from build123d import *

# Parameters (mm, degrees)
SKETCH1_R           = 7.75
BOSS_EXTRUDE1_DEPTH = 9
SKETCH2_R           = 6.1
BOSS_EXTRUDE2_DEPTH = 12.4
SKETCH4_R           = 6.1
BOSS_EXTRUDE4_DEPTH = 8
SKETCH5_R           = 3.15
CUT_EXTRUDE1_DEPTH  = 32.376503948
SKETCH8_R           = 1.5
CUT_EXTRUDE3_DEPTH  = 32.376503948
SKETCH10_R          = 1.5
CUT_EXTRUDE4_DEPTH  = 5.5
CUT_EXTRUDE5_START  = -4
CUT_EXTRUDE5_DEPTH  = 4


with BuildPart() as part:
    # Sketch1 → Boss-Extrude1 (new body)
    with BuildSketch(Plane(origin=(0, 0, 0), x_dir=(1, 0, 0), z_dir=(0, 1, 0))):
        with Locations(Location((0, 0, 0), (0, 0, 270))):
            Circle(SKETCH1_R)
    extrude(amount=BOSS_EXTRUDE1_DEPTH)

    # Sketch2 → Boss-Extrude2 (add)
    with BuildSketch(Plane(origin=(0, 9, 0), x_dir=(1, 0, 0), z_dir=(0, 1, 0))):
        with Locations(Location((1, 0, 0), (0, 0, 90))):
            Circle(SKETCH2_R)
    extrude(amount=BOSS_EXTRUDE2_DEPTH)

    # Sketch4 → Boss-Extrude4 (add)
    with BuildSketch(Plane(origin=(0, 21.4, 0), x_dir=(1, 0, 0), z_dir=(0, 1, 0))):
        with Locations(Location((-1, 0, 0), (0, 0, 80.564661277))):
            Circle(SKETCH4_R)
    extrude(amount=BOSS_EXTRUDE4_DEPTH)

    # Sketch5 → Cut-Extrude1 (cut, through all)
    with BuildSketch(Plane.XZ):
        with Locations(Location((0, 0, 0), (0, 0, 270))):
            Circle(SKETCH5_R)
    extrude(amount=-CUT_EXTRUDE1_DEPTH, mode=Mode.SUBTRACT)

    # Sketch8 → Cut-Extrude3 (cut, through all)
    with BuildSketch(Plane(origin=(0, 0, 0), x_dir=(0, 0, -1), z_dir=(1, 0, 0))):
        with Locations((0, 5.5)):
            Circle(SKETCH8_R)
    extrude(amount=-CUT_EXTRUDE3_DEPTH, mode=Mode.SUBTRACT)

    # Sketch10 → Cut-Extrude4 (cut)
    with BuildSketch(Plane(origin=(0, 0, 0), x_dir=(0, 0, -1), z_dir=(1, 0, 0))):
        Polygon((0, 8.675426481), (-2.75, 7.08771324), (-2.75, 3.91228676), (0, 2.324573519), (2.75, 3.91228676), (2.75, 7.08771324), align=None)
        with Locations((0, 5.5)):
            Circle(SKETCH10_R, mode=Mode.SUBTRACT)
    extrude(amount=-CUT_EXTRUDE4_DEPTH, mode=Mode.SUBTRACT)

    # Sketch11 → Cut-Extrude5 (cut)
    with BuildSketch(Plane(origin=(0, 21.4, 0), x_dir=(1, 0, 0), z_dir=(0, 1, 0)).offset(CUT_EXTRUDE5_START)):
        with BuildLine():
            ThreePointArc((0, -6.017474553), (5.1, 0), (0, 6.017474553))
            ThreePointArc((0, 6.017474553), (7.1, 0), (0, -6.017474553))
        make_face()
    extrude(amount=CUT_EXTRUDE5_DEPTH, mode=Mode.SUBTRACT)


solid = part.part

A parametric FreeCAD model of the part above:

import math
import FreeCAD as App
import Part
import Sketcher

V = App.Vector
Q = App.Units.Quantity


def add_polygon(sketch, points):
    """Adds a closed chain of lines whose ends are joined by coincident constraints."""
    first, n = sketch.GeometryCount, len(points)
    for a, b in zip(points, points[1:] + points[:1]):
        sketch.addGeometry(Part.LineSegment(App.Vector(*a, 0), App.Vector(*b, 0)), False)
    for i in range(n):
        sketch.addConstraint(Sketcher.Constraint("Coincident", first + i, 2, first + (i + 1) % n, 1))

doc = App.newDocument("Part")
body = doc.addObject("PartDesign::Body", "Body")

# Sketch on XZ plane
sketch1 = body.newObject("Sketcher::SketchObject", "Sketch")
sketch1.AttachmentSupport = (doc.getObject("XZ_Plane"), [""])
sketch1.MapMode = "FlatFace"
sketch1.addGeometry(Part.Circle(V(0, 0, 0), V(0, 0, 1), 7.75), False)
sketch1.addConstraint(Sketcher.Constraint("Coincident", 0, 3, -1, 1))
sketch1.addConstraint(Sketcher.Constraint("Diameter", 0, 15.5))
pad1 = body.newObject("PartDesign::Pad", "Pad")
pad1.Profile = sketch1
pad1.Length = 9
pad1.Reversed = True

# Sketch on XZ plane
sketch2 = body.newObject("Sketcher::SketchObject", "Sketch001")
sketch2.AttachmentSupport = (doc.getObject("XZ_Plane"), [""])
sketch2.MapMode = "FlatFace"
sketch2.AttachmentOffset = App.Placement(V(0, 0, -9), App.Rotation())
sketch2.addGeometry(Part.Circle(V(1, 0, 0), V(0, 0, 1), 6.1), False)
sketch2.addConstraint(Sketcher.Constraint("PointOnObject", 0, 3, -1))
sketch2.addConstraint(Sketcher.Constraint("Diameter", 0, 12.2))
sketch2.addConstraint(Sketcher.Constraint("DistanceX", -1, 1, 0, 3, 1.0))
pad2 = body.newObject("PartDesign::Pad", "Pad001")
pad2.Profile = sketch2
pad2.Length = 12.4
pad2.Reversed = True

# Sketch on XZ plane
sketch3 = body.newObject("Sketcher::SketchObject", "Sketch002")
sketch3.AttachmentSupport = (doc.getObject("XZ_Plane"), [""])
sketch3.MapMode = "FlatFace"
sketch3.AttachmentOffset = App.Placement(V(0, 0, -21.4), App.Rotation())
sketch3.addGeometry(Part.Circle(V(-1, 0, 0), V(0, 0, 1), 6.1), False)
sketch3.addConstraint(Sketcher.Constraint("PointOnObject", 0, 3, -1))
sketch3.addConstraint(Sketcher.Constraint("Diameter", 0, 12.2))
sketch3.addConstraint(Sketcher.Constraint("DistanceX", 0, 3, -1, 1, 1.0))
pad3 = body.newObject("PartDesign::Pad", "Pad002")
pad3.Profile = sketch3
pad3.Length = 8
pad3.Reversed = True

# Sketch on XZ plane
sketch4 = body.newObject("Sketcher::SketchObject", "Sketch003")
sketch4.AttachmentSupport = (doc.getObject("XZ_Plane"), [""])
sketch4.MapMode = "FlatFace"
sketch4.addGeometry(Part.Circle(V(0, 0, 0), V(0, 0, 1), 3.15), False)
sketch4.addConstraint(Sketcher.Constraint("Coincident", 0, 3, -1, 1))
sketch4.addConstraint(Sketcher.Constraint("Diameter", 0, 6.3))
pocket1 = body.newObject("PartDesign::Pocket", "Pocket")
pocket1.Profile = sketch4
pocket1.Type = "ThroughAll"

# Sketch on YZ plane
sketch5 = body.newObject("Sketcher::SketchObject", "Sketch004")
sketch5.AttachmentSupport = (doc.getObject("YZ_Plane"), [""])
sketch5.MapMode = "FlatFace"
sketch5.addGeometry(Part.Circle(V(5.5, 0, 0), V(0, 0, 1), 1.5), False)
sketch5.addConstraint(Sketcher.Constraint("PointOnObject", 0, 3, -1))
sketch5.addConstraint(Sketcher.Constraint("Diameter", 0, 3.0))
sketch5.addConstraint(Sketcher.Constraint("DistanceX", -1, 1, 0, 3, 5.5))
pocket2 = body.newObject("PartDesign::Pocket", "Pocket001")
pocket2.Profile = sketch5
pocket2.Type = "ThroughAll"

# Sketch on YZ plane
sketch6 = body.newObject("Sketcher::SketchObject", "Sketch005")
sketch6.AttachmentSupport = (doc.getObject("YZ_Plane"), [""])
sketch6.MapMode = "FlatFace"
add_polygon(sketch6, [(8.675426, 0), (7.087713, 2.75), (3.912287, 2.75), (2.324574, 0), (3.912287, -2.75), (7.087713, -2.75)])  # lines 0-5
sketch6.addGeometry(Part.Circle(V(5.5, 0, 0), V(0, 0, 1), 1.5), False)  # 6
sketch6.addConstraint(Sketcher.Constraint("Horizontal", 1))
sketch6.addConstraint(Sketcher.Constraint("Horizontal", 4))
sketch6.addConstraint(Sketcher.Constraint("Symmetric", 1, 2, 3, 2, -1))
sketch6.addConstraint(Sketcher.Constraint("PointOnObject", 6, 3, -1))
sketch6.addConstraint(Sketcher.Constraint("PointOnObject", 2, 2, -1))
sketch6.addConstraint(Sketcher.Constraint("PointOnObject", 5, 2, -1))
sketch6.addConstraint(Sketcher.Constraint("Parallel", 0, 3))
sketch6.addConstraint(Sketcher.Constraint("Parallel", 2, 5))
sketch6.addConstraint(Sketcher.Constraint("Diameter", 6, 3.0))
sketch6.addConstraint(Sketcher.Constraint("Angle", 0, Q("120 deg")))
sketch6.addConstraint(Sketcher.Constraint("DistanceX", -1, 1, 6, 3, 5.5))
sketch6.addConstraint(Sketcher.Constraint("DistanceY", 3, 2, 1, 2, 5.5))
sketch6.addConstraint(Sketcher.Constraint("DistanceX", 1, 2, 1, 1, 3.175426))
sketch6.addConstraint(Sketcher.Constraint("DistanceX", -1, 1, 0, 2, 7.087713))
pocket3 = body.newObject("PartDesign::Pocket", "Pocket002")
pocket3.Profile = sketch6
pocket3.Length = 5.5

# Sketch on XZ plane
sketch7 = body.newObject("Sketcher::SketchObject", "Sketch006")
sketch7.AttachmentSupport = (doc.getObject("XZ_Plane"), [""])
sketch7.MapMode = "FlatFace"
sketch7.AttachmentOffset = App.Placement(V(0, 0, -17.4), App.Rotation())
sketch7.addGeometry(Part.ArcOfCircle(Part.Circle(V(-1, 0, 0), V(0, 0, 1), 6.1), math.radians(-80.564661), math.radians(80.564661)), False)
sketch7.addGeometry(Part.ArcOfCircle(Part.Circle(V(1, 0, 0), V(0, 0, 1), 6.1), math.radians(-99.435339), math.radians(99.435339)), False)
sketch7.addConstraint(Sketcher.Constraint("Coincident", 0, 1, 1, 1))
sketch7.addConstraint(Sketcher.Constraint("Coincident", 1, 2, 0, 2))
sketch7.addConstraint(Sketcher.Constraint("Equal", 0, 1))
sketch7.addConstraint(Sketcher.Constraint("Symmetric", 0, 3, 1, 3, -1, 1))
sketch7.addConstraint(Sketcher.Constraint("PointOnObject", 0, 3, -1))
sketch7.addConstraint(Sketcher.Constraint("Radius", 0, 6.1))
sketch7.addConstraint(Sketcher.Constraint("DistanceX", 0, 3, -1, 1, 1.0))
pocket4 = body.newObject("PartDesign::Pocket", "Pocket003")
pocket4.Profile = sketch7
pocket4.Length = 4

doc.recompute()
